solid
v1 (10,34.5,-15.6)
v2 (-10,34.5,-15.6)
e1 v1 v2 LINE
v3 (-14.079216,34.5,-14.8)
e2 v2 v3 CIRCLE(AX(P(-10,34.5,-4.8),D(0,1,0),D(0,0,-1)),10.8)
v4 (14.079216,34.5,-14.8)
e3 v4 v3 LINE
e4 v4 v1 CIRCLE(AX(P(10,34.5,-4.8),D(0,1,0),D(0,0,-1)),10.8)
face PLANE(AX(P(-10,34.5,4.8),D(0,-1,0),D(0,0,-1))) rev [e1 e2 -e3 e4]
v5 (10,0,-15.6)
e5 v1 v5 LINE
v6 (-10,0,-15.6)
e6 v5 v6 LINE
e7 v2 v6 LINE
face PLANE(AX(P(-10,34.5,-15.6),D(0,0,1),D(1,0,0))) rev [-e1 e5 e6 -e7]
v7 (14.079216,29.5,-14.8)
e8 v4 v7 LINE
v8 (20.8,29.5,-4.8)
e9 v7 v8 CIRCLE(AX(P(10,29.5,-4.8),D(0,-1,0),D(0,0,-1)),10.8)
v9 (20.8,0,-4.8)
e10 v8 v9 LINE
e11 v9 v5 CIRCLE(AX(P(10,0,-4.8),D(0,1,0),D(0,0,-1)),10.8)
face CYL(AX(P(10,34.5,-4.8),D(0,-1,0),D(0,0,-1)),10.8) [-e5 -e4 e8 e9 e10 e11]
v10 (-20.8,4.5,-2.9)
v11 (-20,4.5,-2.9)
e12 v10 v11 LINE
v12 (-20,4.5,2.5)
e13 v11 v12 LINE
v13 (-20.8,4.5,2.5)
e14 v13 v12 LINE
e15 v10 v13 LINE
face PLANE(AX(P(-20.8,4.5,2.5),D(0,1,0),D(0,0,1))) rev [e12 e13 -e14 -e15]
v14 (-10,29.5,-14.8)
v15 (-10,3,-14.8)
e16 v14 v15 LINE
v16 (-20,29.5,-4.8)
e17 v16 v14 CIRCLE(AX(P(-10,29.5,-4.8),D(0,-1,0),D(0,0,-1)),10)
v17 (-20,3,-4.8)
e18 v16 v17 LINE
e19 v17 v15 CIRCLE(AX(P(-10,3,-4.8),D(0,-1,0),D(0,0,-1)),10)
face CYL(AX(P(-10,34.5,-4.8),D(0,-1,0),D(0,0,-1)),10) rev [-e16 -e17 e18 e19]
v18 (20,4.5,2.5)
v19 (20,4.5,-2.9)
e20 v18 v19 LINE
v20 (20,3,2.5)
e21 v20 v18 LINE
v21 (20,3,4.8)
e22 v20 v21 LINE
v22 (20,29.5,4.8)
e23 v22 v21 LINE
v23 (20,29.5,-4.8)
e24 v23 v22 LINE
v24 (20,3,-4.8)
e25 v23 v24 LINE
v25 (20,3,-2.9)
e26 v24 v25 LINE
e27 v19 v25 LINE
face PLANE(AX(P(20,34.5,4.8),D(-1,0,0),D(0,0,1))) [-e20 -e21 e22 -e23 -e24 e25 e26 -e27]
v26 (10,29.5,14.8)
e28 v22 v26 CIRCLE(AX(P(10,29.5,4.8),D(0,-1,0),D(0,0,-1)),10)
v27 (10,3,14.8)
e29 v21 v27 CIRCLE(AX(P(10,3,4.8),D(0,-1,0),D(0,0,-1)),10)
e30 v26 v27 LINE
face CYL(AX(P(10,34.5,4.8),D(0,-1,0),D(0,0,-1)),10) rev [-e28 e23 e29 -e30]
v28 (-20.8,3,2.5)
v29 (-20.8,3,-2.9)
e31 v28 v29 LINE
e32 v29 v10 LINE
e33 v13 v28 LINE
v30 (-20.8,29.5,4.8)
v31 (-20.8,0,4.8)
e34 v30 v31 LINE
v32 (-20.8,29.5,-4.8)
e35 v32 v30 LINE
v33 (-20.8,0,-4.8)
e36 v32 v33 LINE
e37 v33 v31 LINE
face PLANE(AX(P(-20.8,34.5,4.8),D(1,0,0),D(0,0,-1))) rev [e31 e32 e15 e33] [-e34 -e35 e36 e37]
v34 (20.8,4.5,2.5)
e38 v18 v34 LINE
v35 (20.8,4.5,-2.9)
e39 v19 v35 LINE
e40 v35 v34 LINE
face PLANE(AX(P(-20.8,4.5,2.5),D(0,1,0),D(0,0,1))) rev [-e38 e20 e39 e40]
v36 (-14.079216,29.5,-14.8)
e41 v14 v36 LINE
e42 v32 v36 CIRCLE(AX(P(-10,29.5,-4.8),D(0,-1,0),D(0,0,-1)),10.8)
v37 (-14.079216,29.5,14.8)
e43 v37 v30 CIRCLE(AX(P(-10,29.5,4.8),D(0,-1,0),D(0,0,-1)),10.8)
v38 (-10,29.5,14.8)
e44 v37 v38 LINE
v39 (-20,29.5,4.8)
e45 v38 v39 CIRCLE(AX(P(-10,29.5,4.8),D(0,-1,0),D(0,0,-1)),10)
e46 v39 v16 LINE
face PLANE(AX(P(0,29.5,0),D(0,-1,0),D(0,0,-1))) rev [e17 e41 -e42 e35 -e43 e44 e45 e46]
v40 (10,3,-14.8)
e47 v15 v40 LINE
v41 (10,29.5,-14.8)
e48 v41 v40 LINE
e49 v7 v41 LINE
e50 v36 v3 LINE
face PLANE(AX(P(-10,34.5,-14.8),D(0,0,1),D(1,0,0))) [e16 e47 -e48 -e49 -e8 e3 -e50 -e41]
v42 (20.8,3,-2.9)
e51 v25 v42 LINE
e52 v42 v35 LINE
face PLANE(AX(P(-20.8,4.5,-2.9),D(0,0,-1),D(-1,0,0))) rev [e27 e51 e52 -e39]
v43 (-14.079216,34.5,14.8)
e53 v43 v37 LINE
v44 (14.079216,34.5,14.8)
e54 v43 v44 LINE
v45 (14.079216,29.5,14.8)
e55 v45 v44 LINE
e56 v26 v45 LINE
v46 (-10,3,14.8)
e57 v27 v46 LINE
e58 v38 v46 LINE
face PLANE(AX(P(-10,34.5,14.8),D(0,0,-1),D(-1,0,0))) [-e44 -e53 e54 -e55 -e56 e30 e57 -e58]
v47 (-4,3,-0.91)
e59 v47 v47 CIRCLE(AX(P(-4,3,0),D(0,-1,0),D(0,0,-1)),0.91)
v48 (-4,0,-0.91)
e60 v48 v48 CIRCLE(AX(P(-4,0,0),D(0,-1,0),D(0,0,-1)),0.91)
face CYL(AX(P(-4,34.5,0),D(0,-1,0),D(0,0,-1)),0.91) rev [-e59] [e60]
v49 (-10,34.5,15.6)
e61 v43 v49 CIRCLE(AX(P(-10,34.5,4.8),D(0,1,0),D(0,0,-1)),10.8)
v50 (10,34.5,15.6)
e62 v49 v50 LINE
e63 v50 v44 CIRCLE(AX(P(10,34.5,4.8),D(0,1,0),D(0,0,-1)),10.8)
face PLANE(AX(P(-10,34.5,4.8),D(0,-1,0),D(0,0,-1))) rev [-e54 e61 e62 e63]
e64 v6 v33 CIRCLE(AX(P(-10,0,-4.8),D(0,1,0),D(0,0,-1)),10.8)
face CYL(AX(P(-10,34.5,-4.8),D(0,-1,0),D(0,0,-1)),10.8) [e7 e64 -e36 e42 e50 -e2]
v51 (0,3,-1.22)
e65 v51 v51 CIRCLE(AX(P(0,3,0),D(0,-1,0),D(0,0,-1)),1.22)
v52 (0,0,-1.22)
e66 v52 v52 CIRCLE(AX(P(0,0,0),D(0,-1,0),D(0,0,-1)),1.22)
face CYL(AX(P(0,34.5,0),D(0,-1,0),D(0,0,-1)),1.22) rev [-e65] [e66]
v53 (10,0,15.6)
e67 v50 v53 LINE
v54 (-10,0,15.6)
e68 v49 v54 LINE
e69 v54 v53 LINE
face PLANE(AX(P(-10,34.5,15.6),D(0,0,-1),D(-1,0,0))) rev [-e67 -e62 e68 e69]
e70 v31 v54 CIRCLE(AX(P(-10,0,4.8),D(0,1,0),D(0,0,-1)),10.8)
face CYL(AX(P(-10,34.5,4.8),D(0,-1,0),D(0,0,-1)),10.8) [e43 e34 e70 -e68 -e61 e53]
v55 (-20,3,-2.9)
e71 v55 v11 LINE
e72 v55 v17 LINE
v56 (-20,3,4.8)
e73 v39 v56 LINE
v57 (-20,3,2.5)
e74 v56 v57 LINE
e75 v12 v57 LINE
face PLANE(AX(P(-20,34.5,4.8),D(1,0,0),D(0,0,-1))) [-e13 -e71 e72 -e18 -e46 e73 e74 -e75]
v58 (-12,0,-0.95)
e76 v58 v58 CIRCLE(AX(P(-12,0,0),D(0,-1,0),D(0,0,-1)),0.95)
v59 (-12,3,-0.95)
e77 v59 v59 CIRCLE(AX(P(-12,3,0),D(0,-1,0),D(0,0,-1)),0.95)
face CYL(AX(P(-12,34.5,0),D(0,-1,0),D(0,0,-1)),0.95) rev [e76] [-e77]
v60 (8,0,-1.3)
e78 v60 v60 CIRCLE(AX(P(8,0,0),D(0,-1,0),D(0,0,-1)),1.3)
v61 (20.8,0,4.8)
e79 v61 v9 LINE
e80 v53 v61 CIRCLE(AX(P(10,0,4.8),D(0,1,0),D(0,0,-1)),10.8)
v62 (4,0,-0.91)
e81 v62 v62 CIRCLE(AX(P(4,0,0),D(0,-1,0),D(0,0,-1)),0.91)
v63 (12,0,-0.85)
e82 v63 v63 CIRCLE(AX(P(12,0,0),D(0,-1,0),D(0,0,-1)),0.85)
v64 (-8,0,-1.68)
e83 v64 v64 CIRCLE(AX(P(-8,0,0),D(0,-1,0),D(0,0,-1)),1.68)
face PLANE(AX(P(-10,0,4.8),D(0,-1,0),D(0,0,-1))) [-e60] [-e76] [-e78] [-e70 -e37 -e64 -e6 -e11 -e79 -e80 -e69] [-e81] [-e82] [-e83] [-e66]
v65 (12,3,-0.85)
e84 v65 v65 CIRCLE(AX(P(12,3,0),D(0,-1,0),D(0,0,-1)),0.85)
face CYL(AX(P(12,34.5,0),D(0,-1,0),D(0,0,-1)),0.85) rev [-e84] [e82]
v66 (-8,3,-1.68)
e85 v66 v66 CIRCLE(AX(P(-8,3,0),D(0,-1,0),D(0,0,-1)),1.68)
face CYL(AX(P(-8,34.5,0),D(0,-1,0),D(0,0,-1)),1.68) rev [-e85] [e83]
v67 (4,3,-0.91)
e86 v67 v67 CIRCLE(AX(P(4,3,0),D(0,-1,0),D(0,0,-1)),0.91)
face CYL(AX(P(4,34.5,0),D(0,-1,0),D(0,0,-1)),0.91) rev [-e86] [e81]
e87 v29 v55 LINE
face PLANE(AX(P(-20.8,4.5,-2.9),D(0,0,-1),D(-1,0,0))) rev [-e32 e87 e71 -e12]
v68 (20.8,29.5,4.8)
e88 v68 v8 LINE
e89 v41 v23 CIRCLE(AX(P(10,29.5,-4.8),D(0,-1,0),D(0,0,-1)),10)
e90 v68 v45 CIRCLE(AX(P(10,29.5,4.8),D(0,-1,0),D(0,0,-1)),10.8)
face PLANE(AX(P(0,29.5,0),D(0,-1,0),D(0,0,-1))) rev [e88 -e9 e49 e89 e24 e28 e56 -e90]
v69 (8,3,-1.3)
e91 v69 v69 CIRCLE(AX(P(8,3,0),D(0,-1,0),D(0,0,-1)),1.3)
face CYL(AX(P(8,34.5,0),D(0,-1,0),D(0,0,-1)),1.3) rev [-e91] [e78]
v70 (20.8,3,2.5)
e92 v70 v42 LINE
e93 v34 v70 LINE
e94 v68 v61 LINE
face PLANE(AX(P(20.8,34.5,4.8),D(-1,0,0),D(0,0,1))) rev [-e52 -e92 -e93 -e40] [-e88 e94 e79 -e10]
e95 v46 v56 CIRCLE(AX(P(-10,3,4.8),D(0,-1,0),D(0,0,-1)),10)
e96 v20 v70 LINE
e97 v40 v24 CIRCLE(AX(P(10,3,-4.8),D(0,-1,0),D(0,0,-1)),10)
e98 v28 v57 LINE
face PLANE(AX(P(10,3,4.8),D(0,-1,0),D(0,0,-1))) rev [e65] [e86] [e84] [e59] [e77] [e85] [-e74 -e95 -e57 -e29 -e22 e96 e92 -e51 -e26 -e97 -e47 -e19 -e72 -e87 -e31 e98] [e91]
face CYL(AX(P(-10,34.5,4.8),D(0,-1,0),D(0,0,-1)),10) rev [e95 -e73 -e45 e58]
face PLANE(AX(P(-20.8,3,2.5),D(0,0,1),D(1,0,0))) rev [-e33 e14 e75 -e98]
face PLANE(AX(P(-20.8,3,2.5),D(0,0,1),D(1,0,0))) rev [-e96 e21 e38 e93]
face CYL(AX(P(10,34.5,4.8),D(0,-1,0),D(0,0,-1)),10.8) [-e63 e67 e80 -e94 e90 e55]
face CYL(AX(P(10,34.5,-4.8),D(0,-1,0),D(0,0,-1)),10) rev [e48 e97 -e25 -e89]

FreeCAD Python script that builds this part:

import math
import FreeCAD as App
import Part
import Sketcher

V = App.Vector

doc = App.newDocument("Part")
params = doc.addObject("Spreadsheet::Sheet", "Params")
for row, (alias, value) in enumerate([
    ("sketch1_radius", "10 mm"),
    ("sketch1_radius2", "10.8 mm"),
    ("sketch1_width", "20 mm"),
    ("sketch1_height", "9.6 mm"),
    ("pad1_length", "34.5 mm"),
    ("sketch2_width", "41.6 mm"),
    ("sketch2_height", "29.6 mm"),
    ("pocket1_length", "5 mm"),
    ("sketch3_radius", "10 mm"),
    ("sketch3_width", "20 mm"),
    ("sketch3_height", "9.6 mm"),
    ("pad2_length", "3 mm"),
    ("sketch4_width", "1.5 mm"),
    ("sketch4_height", "5.4 mm"),
    ("sketch5_diameter", "2.6 mm"),
    ("sketch5_diameter2", "1.9 mm"),
    ("sketch5_diameter3", "1.7 mm"),
    ("sketch5_diameter4", "2.44 mm"),
    ("sketch5_diameter5", "1.82 mm"),
], start=1):
    params.set(f"A{row}", alias)
    params.set(f"B{row}", "=" + value)
    params.setAlias(f"B{row}", alias)

body = doc.addObject("PartDesign::Body", "Body")

sketch1 = doc.addObject("Sketcher::SketchObject", "Sketch")
body.addObject(sketch1)
sketch1.AttachmentSupport = (doc.XZ_Plane, [""])
sketch1.MapMode = "FlatFace"
sketch1.addGeometry(Part.LineSegment(V(-10, 15.6, 0), V(10, 15.6, 0)), False)
sketch1.addGeometry(Part.ArcOfCircle(Part.Circle(V(10, 4.8, 0), V(0, 0, 1), 10.8), math.radians(0), math.radians(90)), False)
sketch1.addGeometry(Part.LineSegment(V(20.8, 4.8, 0), V(20.8, -4.8, 0)), False)
sketch1.addGeometry(Part.ArcOfCircle(Part.Circle(V(10, -4.8, 0), V(0, 0, 1), 10.8), math.radians(-90), math.radians(0)), False)
sketch1.addGeometry(Part.LineSegment(V(10, -15.6, 0), V(-10, -15.6, 0)), False)
sketch1.addGeometry(Part.ArcOfCircle(Part.Circle(V(-10, -4.8, 0), V(0, 0, 1), 10.8), math.radians(180), math.radians(270)), False)
sketch1.addGeometry(Part.LineSegment(V(-20.8, -4.8, 0), V(-20.8, 4.8, 0)), False)
sketch1.addGeometry(Part.ArcOfCircle(Part.Circle(V(-10, 4.8, 0), V(0, 0, 1), 10.8), math.radians(90), math.radians(180)), False)
sketch1.addGeometry(Part.LineSegment(V(10, 14.8, 0), V(-10, 14.8, 0)), False)
sketch1.addGeometry(Part.ArcOfCircle(Part.Circle(V(-10, 4.8, 0), V(0, 0, 1), 10), math.radians(90), math.radians(180)), False)
sketch1.addGeometry(Part.LineSegment(V(-20, 4.8, 0), V(-20, -4.8, 0)), False)
sketch1.addGeometry(Part.ArcOfCircle(Part.Circle(V(-10, -4.8, 0), V(0, 0, 1), 10), math.radians(180), math.radians(270)), False)
sketch1.addGeometry(Part.LineSegment(V(-10, -14.8, 0), V(10, -14.8, 0)), False)
sketch1.addGeometry(Part.ArcOfCircle(Part.Circle(V(10, -4.8, 0), V(0, 0, 1), 10), math.radians(-90), math.radians(0)), False)
sketch1.addGeometry(Part.LineSegment(V(20, -4.8, 0), V(20, 4.8, 0)), False)
sketch1.addGeometry(Part.ArcOfCircle(Part.Circle(V(10, 4.8, 0), V(0, 0, 1), 10), math.radians(0), math.radians(90)), False)
sketch1.addConstraint(Sketcher.Constraint("Tangent", 0, 2, 1, 2))
sketch1.addConstraint(Sketcher.Constraint("Tangent", 1, 1, 2, 1))
sketch1.addConstraint(Sketcher.Constraint("Tangent", 2, 2, 3, 2))
sketch1.addConstraint(Sketcher.Constraint("Tangent", 3, 1, 4, 1))
sketch1.addConstraint(Sketcher.Constraint("Tangent", 4, 2, 5, 2))
sketch1.addConstraint(Sketcher.Constraint("Tangent", 5, 1, 6, 1))
sketch1.addConstraint(Sketcher.Constraint("Tangent", 6, 2, 7, 2))
sketch1.addConstraint(Sketcher.Constraint("Tangent", 7, 1, 0, 1))
sketch1.addConstraint(Sketcher.Constraint("Tangent", 8, 2, 9, 1))
sketch1.addConstraint(Sketcher.Constraint("Tangent", 9, 2, 10, 1))
sketch1.addConstraint(Sketcher.Constraint("Tangent", 10, 2, 11, 1))
sketch1.addConstraint(Sketcher.Constraint("Tangent", 11, 2, 12, 1))
sketch1.addConstraint(Sketcher.Constraint("Tangent", 12, 2, 13, 1))
sketch1.addConstraint(Sketcher.Constraint("Tangent", 13, 2, 14, 1))
sketch1.addConstraint(Sketcher.Constraint("Tangent", 14, 2, 15, 1))
sketch1.addConstraint(Sketcher.Constraint("Tangent", 15, 2, 8, 1))
sketch1.addConstraint(Sketcher.Constraint("Horizontal", 0))
sketch1.addConstraint(Sketcher.Constraint("Vertical", 2))
sketch1.addConstraint(Sketcher.Constraint("Horizontal", 4))
sketch1.addConstraint(Sketcher.Constraint("Vertical", 6))
sketch1.addConstraint(Sketcher.Constraint("Horizontal", 8))
sketch1.addConstraint(Sketcher.Constraint("Vertical", 10))
sketch1.addConstraint(Sketcher.Constraint("Horizontal", 12))
sketch1.addConstraint(Sketcher.Constraint("Vertical", 14))
sketch1.addConstraint(Sketcher.Constraint("Coincident", 9, 3, 7, 3))
sketch1.addConstraint(Sketcher.Constraint("Coincident", 11, 3, 5, 3))
sketch1.addConstraint(Sketcher.Constraint("Coincident", 13, 3, 3, 3))
sketch1.addConstraint(Sketcher.Constraint("Equal", 1, 3))
sketch1.addConstraint(Sketcher.Constraint("Equal", 3, 5))
sketch1.addConstraint(Sketcher.Constraint("Equal", 5, 7))
sketch1.addConstraint(Sketcher.Constraint("Equal", 13, 15))
sketch1.addConstraint(Sketcher.Constraint("Symmetric", 1, 3, 5, 3, -1, 1))
sketch1.addConstraint(Sketcher.Constraint("Radius", 9, 10.0))
sketch1.addConstraint(Sketcher.Constraint("Radius", 1, 10.8))
sketch1.addConstraint(Sketcher.Constraint("DistanceX", 0, 1, 0, 2, 20.0))
sketch1.addConstraint(Sketcher.Constraint("DistanceY", 2, 2, 2, 1, 9.6))
sketch1.setExpression("Constraints[32]", "Params.sketch1_radius")
sketch1.setExpression("Constraints[33]", "Params.sketch1_radius2")
sketch1.setExpression("Constraints[34]", "Params.sketch1_width")
sketch1.setExpression("Constraints[35]", "Params.sketch1_height")
pad1 = doc.addObject("PartDesign::Pad", "Pad")
body.addObject(pad1)
pad1.Profile = sketch1
pad1.setExpression("Length", "Params.pad1_length")
pad1.Reversed = True

sketch2 = doc.addObject("Sketcher::SketchObject", "Sketch001")
body.addObject(sketch2)
sketch2.AttachmentSupport = (doc.XZ_Plane, [""])
sketch2.MapMode = "FlatFace"
sketch2.AttachmentOffset = App.Placement(V(0, 0, -34.5), App.Rotation())
sketch2.addGeometry(Part.LineSegment(V(-20.8, -14.8, 0), V(-20.8, 14.8, 0)), False)
sketch2.addGeometry(Part.LineSegment(V(-20.8, 14.8, 0), V(20.8, 14.8, 0)), False)
sketch2.addGeometry(Part.LineSegment(V(20.8, 14.8, 0), V(20.8, -14.8, 0)), False)
sketch2.addGeometry(Part.LineSegment(V(20.8, -14.8, 0), V(-20.8, -14.8, 0)), False)
sketch2.addConstraint(Sketcher.Constraint("Coincident", 0, 2, 1, 1))
sketch2.addConstraint(Sketcher.Constraint("Coincident", 1, 2, 2, 1))
sketch2.addConstraint(Sketcher.Constraint("Coincident", 2, 2, 3, 1))
sketch2.addConstraint(Sketcher.Constraint("Coincident", 3, 2, 0, 1))
sketch2.addConstraint(Sketcher.Constraint("Vertical", 0))
sketch2.addConstraint(Sketcher.Constraint("Horizontal", 1))
sketch2.addConstraint(Sketcher.Constraint("Vertical", 2))
sketch2.addConstraint(Sketcher.Constraint("Horizontal", 3))
sketch2.addConstraint(Sketcher.Constraint("Symmetric", 0, 2, 2, 2, -1, 1))
sketch2.addConstraint(Sketcher.Constraint("DistanceX", 1, 1, 1, 2, 41.6))
sketch2.addConstraint(Sketcher.Constraint("DistanceY", 0, 1, 0, 2, 29.6))
sketch2.setExpression("Constraints[9]", "Params.sketch2_width")
sketch2.setExpression("Constraints[10]", "Params.sketch2_height")
pocket1 = doc.addObject("PartDesign::Pocket", "Pocket")
body.addObject(pocket1)
pocket1.Profile = sketch2
pocket1.setExpression("Length", "Params.pocket1_length")
pocket1.Reversed = True

sketch3 = doc.addObject("Sketcher::SketchObject", "Sketch002")
body.addObject(sketch3)
sketch3.AttachmentSupport = (doc.XZ_Plane, [""])
sketch3.MapMode = "FlatFace"
sketch3.addGeometry(Part.LineSegment(V(20, -4.8, 0), V(20, 4.8, 0)), False)
sketch3.addGeometry(Part.ArcOfCircle(Part.Circle(V(10, 4.8, 0), V(0, 0, 1), 10), math.radians(0), math.radians(90)), False)
sketch3.addGeometry(Part.LineSegment(V(10, 14.8, 0), V(-10, 14.8, 0)), False)
sketch3.addGeometry(Part.ArcOfCircle(Part.Circle(V(-10, 4.8, 0), V(0, 0, 1), 10), math.radians(90), math.radians(180)), False)
sketch3.addGeometry(Part.LineSegment(V(-20, 4.8, 0), V(-20, -4.8, 0)), False)
sketch3.addGeometry(Part.ArcOfCircle(Part.Circle(V(-10, -4.8, 0), V(0, 0, 1), 10), math.radians(180), math.radians(270)), False)
sketch3.addGeometry(Part.LineSegment(V(-10, -14.8, 0), V(10, -14.8, 0)), False)
sketch3.addGeometry(Part.ArcOfCircle(Part.Circle(V(10, -4.8, 0), V(0, 0, 1), 10), math.radians(-90), math.radians(0)), False)
sketch3.addConstraint(Sketcher.Constraint("Tangent", 0, 2, 1, 1))
sketch3.addConstraint(Sketcher.Constraint("Tangent", 1, 2, 2, 1))
sketch3.addConstraint(Sketcher.Constraint("Tangent", 2, 2, 3, 1))
sketch3.addConstraint(Sketcher.Constraint("Tangent", 3, 2, 4, 1))
sketch3.addConstraint(Sketcher.Constraint("Tangent", 4, 2, 5, 1))
sketch3.addConstraint(Sketcher.Constraint("Tangent", 5, 2, 6, 1))
sketch3.addConstraint(Sketcher.Constraint("Tangent", 6, 2, 7, 1))
sketch3.addConstraint(Sketcher.Constraint("Tangent", 7, 2, 0, 1))
sketch3.addConstraint(Sketcher.Constraint("Vertical", 0))
sketch3.addConstraint(Sketcher.Constraint("Horizontal", 2))
sketch3.addConstraint(Sketcher.Constraint("Vertical", 4))
sketch3.addConstraint(Sketcher.Constraint("Horizontal", 6))
sketch3.addConstraint(Sketcher.Constraint("Equal", 1, 3))
sketch3.addConstraint(Sketcher.Constraint("Equal", 3, 5))
sketch3.addConstraint(Sketcher.Constraint("Equal", 5, 7))
sketch3.addConstraint(Sketcher.Constraint("Symmetric", 1, 3, 5, 3, -1, 1))
sketch3.addConstraint(Sketcher.Constraint("Radius", 1, 10.0))
sketch3.addConstraint(Sketcher.Constraint("DistanceX", 2, 2, 2, 1, 20.0))
sketch3.addConstraint(Sketcher.Constraint("DistanceY", 0, 1, 0, 2, 9.6))
sketch3.setExpression("Constraints[16]", "Params.sketch3_radius")
sketch3.setExpression("Constraints[17]", "Params.sketch3_width")
sketch3.setExpression("Constraints[18]", "Params.sketch3_height")
pad2 = doc.addObject("PartDesign::Pad", "Pad001")
body.addObject(pad2)
pad2.Profile = sketch3
pad2.setExpression("Length", "Params.pad2_length")
pad2.Reversed = True

sketch4 = doc.addObject("Sketcher::SketchObject", "Sketch003")
body.addObject(sketch4)
sketch4.AttachmentSupport = (doc.YZ_Plane, [""])
sketch4.MapMode = "FlatFace"
sketch4.AttachmentOffset = App.Placement(V(0, 0, 20.8), App.Rotation())
sketch4.addGeometry(Part.LineSegment(V(4.5, 2.5, 0), V(3, 2.5, 0)), False)
sketch4.addGeometry(Part.LineSegment(V(3, 2.5, 0), V(3, -2.9, 0)), False)
sketch4.addGeometry(Part.LineSegment(V(3, -2.9, 0), V(4.5, -2.9, 0)), False)
sketch4.addGeometry(Part.LineSegment(V(4.5, -2.9, 0), V(4.5, 2.5, 0)), False)
sketch4.addConstraint(Sketcher.Constraint("Coincident", 0, 2, 1, 1))
sketch4.addConstraint(Sketcher.Constraint("Coincident", 1, 2, 2, 1))
sketch4.addConstraint(Sketcher.Constraint("Coincident", 2, 2, 3, 1))
sketch4.addConstraint(Sketcher.Constraint("Coincident", 3, 2, 0, 1))
sketch4.addConstraint(Sketcher.Constraint("Horizontal", 0))
sketch4.addConstraint(Sketcher.Constraint("Vertical", 1))
sketch4.addConstraint(Sketcher.Constraint("Horizontal", 2))
sketch4.addConstraint(Sketcher.Constraint("Vertical", 3))
sketch4.addConstraint(Sketcher.Constraint("DistanceX", 0, 2, 0, 1, 1.5))
sketch4.addConstraint(Sketcher.Constraint("DistanceY", 1, 2, 1, 1, 5.4))
sketch4.addConstraint(Sketcher.Constraint("DistanceX", -1, 1, 0, 2, 3.0))
sketch4.addConstraint(Sketcher.Constraint("DistanceY", -1, 1, 0, 2, 2.5))
sketch4.setExpression("Constraints[8]", "Params.sketch4_width")
sketch4.setExpression("Constraints[9]", "Params.sketch4_height")
pocket2 = doc.addObject("PartDesign::Pocket", "Pocket001")
body.addObject(pocket2)
pocket2.Profile = sketch4
pocket2.Type = "ThroughAll"

sketch5 = doc.addObject("Sketcher::SketchObject", "Sketch004")
body.addObject(sketch5)
sketch5.AttachmentSupport = (doc.XZ_Plane, [""])
sketch5.MapMode = "FlatFace"
sketch5.addGeometry(Part.Circle(V(0, 0, 0), V(0, 0, 1), 1.22), False)
sketch5.addGeometry(Part.Circle(V(4, 0, 0), V(0, 0, 1), 0.91), False)
sketch5.addGeometry(Part.Circle(V(8, 0, 0), V(0, 0, 1), 1.3), False)
sketch5.addGeometry(Part.Circle(V(-4, 0, 0), V(0, 0, 1), 0.91), False)
sketch5.addGeometry(Part.Circle(V(-8, 0, 0), V(0, 0, 1), 1.68), False)
sketch5.addGeometry(Part.Circle(V(-12, 0, 0), V(0, 0, 1), 0.95), False)
sketch5.addGeometry(Part.Circle(V(12, 0, 0), V(0, 0, 1), 0.85), False)
sketch5.addConstraint(Sketcher.Constraint("Coincident", 0, 3, -1, 1))
sketch5.addConstraint(Sketcher.Constraint("Equal", 1, 3))
sketch5.addConstraint(Sketcher.Constraint("Symmetric", 1, 3, 3, 3, -1, 1))
sketch5.addConstraint(Sketcher.Constraint("Symmetric", 2, 3, 4, 3, -1, 1))
sketch5.addConstraint(Sketcher.Constraint("Symmetric", 5, 3, 6, 3, -1, 1))
sketch5.addConstraint(Sketcher.Constraint("PointOnObject", 1, 3, -1))
sketch5.addConstraint(Sketcher.Constraint("PointOnObject", 2, 3, -1))
sketch5.addConstraint(Sketcher.Constraint("PointOnObject", 5, 3, -1))
sketch5.addConstraint(Sketcher.Constraint("Diameter", 2, 2.6))
sketch5.addConstraint(Sketcher.Constraint("Diameter", 5, 1.9))
sketch5.addConstraint(Sketcher.Constraint("Diameter", 6, 1.7))
sketch5.addConstraint(Sketcher.Constraint("Diameter", 0, 2.44))
sketch5.addConstraint(Sketcher.Constraint("Diameter", 1, 1.82))
sketch5.addConstraint(Sketcher.Constraint("Diameter", 4, 3.36))
sketch5.addConstraint(Sketcher.Constraint("DistanceX", -1, 1, 1, 3, 4.0))
sketch5.addConstraint(Sketcher.Constraint("DistanceX", -1, 1, 2, 3, 8.0))
sketch5.addConstraint(Sketcher.Constraint("DistanceX", 5, 3, -1, 1, 12.0))
sketch5.setExpression("Constraints[8]", "Params.sketch5_diameter")
sketch5.setExpression("Constraints[9]", "Params.sketch5_diameter2")
sketch5.setExpression("Constraints[10]", "Params.sketch5_diameter3")
sketch5.setExpression("Constraints[11]", "Params.sketch5_diameter4")
sketch5.setExpression("Constraints[12]", "Params.sketch5_diameter5")
pocket3 = doc.addObject("PartDesign::Pocket", "Pocket002")
body.addObject(pocket3)
pocket3.Profile = sketch5
pocket3.Type = "ThroughAll"

doc.recompute()
